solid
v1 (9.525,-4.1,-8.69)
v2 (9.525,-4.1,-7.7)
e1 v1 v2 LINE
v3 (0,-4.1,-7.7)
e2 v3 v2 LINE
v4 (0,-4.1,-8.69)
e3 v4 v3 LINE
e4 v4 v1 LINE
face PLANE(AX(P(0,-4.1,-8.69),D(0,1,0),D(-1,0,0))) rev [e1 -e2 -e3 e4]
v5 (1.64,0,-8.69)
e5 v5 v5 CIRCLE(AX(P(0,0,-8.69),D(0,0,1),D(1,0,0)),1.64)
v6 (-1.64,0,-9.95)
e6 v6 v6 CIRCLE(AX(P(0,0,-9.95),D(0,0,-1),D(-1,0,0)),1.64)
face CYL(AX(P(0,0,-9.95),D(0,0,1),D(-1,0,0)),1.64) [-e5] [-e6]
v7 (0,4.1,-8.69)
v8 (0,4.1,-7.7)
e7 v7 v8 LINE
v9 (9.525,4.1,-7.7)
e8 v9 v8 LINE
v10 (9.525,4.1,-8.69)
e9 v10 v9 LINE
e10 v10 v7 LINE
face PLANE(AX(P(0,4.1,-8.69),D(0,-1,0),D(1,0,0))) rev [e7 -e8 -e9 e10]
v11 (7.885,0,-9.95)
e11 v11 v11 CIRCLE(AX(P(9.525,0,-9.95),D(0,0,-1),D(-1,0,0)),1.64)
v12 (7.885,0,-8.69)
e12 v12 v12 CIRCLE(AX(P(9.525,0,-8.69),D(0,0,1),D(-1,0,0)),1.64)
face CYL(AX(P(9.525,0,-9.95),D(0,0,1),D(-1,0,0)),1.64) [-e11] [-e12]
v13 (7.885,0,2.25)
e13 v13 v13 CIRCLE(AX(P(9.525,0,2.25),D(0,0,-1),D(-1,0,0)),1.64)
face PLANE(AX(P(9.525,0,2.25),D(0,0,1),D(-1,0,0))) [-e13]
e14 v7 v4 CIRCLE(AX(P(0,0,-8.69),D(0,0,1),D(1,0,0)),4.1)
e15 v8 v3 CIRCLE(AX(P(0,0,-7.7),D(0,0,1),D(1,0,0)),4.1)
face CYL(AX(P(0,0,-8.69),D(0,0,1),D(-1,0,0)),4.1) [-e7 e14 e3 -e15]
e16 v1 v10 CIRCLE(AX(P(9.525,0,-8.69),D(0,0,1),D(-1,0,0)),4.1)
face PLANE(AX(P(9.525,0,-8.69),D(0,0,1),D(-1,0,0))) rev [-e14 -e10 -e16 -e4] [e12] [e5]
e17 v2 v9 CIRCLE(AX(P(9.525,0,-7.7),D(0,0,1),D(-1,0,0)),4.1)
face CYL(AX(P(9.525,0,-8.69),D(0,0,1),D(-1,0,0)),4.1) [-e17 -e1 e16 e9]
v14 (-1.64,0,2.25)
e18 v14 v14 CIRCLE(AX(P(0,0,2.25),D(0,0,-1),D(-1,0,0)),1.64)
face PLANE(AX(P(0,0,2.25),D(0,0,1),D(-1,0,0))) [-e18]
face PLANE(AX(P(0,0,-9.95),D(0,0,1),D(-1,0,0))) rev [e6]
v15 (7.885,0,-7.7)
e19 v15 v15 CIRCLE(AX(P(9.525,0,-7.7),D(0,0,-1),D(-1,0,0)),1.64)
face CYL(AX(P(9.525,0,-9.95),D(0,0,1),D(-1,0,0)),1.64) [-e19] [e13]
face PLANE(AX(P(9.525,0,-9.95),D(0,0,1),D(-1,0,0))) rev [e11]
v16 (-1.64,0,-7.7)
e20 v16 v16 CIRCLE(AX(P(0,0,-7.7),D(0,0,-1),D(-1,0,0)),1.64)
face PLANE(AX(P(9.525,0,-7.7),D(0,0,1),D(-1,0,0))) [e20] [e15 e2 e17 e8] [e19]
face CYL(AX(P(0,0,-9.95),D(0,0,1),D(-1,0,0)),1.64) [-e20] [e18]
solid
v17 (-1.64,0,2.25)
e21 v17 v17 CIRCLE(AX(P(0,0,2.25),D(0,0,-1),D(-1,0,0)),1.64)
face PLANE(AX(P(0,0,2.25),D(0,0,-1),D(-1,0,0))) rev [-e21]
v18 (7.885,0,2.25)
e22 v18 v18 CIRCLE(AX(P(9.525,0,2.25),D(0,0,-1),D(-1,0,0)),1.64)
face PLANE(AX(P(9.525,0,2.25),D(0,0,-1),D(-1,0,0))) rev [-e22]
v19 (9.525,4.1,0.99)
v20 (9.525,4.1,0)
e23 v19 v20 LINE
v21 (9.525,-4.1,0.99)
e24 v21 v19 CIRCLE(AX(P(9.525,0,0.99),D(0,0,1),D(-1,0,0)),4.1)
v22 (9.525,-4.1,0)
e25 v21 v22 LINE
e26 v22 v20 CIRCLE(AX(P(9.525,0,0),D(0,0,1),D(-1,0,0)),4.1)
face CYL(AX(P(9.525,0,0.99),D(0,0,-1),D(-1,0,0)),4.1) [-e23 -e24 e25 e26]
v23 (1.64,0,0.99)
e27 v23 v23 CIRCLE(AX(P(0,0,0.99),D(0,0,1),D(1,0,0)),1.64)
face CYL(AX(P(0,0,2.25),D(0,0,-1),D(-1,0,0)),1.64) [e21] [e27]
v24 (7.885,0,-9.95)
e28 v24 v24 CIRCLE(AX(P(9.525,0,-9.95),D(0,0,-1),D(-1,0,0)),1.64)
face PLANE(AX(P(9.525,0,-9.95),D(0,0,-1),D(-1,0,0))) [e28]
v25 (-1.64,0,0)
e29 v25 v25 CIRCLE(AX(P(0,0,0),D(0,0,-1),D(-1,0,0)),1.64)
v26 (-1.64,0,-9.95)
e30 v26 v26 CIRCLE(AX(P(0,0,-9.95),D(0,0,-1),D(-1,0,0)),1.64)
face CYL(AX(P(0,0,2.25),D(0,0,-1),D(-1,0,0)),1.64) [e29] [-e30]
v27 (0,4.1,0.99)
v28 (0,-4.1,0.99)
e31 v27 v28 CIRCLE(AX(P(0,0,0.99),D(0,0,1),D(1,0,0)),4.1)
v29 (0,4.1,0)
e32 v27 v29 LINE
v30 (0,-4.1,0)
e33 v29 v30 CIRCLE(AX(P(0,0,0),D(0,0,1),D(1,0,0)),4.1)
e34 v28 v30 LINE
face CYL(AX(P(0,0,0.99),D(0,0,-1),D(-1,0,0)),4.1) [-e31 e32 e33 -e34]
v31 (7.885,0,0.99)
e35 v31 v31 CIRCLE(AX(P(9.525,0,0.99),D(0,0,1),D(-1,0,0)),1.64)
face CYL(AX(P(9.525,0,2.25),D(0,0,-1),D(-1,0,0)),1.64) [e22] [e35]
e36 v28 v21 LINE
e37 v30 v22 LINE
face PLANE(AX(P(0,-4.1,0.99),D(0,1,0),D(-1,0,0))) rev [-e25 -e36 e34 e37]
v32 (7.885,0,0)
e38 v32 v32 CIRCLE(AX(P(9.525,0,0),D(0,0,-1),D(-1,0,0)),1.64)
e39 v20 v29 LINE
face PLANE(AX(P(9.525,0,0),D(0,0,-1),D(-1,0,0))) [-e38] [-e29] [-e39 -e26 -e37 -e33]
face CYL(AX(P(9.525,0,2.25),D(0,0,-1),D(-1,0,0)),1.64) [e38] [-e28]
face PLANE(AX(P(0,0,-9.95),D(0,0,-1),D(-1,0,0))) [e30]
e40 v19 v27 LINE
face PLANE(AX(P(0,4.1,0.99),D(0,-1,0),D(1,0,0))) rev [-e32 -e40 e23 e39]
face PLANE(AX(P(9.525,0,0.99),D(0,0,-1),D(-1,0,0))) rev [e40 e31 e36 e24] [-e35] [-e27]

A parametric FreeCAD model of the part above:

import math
import FreeCAD as App
import Part
import Sketcher
from FreeCAD import Vector

doc = App.newDocument("Part")
body = doc.addObject("PartDesign::Body", "Body")

sketch1 = doc.addObject("Sketcher::SketchObject", "Sketch")
body.addObject(sketch1)
sketch1.AttachmentSupport = (doc.XY_Plane, [""])
sketch1.MapMode = "FlatFace"
sketch1.addGeometry(Part.LineSegment(Vector(9.5, 4.1, 0), Vector(0, 4.1, 0)), False)
sketch1.addGeometry(Part.ArcOfCircle(Part.Circle(Vector(0, 0, 0), Vector(0, 0, 1), 4.1), math.radians(90), math.radians(270)), False)
sketch1.addGeometry(Part.LineSegment(Vector(0, -4.1, 0), Vector(9.5, -4.1, 0)), False)
sketch1.addGeometry(Part.ArcOfCircle(Part.Circle(Vector(9.5, 0, 0), Vector(0, 0, 1), 4.1), math.radians(-90), math.radians(90)), False)
sketch1.addGeometry(Part.Circle(Vector(9.5, 0, 0), Vector(0, 0, 1), 1.6), False)
sketch1.addGeometry(Part.Circle(Vector(0, 0, 0), Vector(0, 0, 1), 1.6), False)
sketch1.addConstraint(Sketcher.Constraint("Tangent", 0, 2, 1, 1))
sketch1.addConstraint(Sketcher.Constraint("Tangent", 1, 2, 2, 1))
sketch1.addConstraint(Sketcher.Constraint("Tangent", 2, 2, 3, 1))
sketch1.addConstraint(Sketcher.Constraint("Tangent", 3, 2, 0, 1))
sketch1.addConstraint(Sketcher.Constraint("Horizontal", 0))
sketch1.addConstraint(Sketcher.Constraint("Horizontal", 2))
sketch1.addConstraint(Sketcher.Constraint("Coincident", 1, 3, -1, 1))
sketch1.addConstraint(Sketcher.Constraint("Coincident", 5, 3, -1, 1))
sketch1.addConstraint(Sketcher.Constraint("Coincident", 4, 3, 3, 3))
sketch1.addConstraint(Sketcher.Constraint("Equal", 4, 5))
sketch1.addConstraint(Sketcher.Constraint("Radius", 1, 4.1))
sketch1.addConstraint(Sketcher.Constraint("Diameter", 4, 3.28))
sketch1.addConstraint(Sketcher.Constraint("DistanceX", 0, 2, 0, 1, 9.525))
pad1 = doc.addObject("PartDesign::Pad", "Pad")
body.addObject(pad1)
pad1.Profile = sketch1
pad1.Length = 0.99

sketch2 = doc.addObject("Sketcher::SketchObject", "Sketch001")
body.addObject(sketch2)
sketch2.AttachmentSupport = (doc.XY_Plane, [""])
sketch2.MapMode = "FlatFace"
sketch2.addGeometry(Part.Circle(Vector(9.5, 0, 0), Vector(0, 0, 1), 1.6), False)
sketch2.addGeometry(Part.Circle(Vector(0, 0, 0), Vector(0, 0, 1), 1.6), False)
sketch2.addConstraint(Sketcher.Constraint("Coincident", 1, 3, -1, 1))
sketch2.addConstraint(Sketcher.Constraint("Equal", 0, 1))
sketch2.addConstraint(Sketcher.Constraint("PointOnObject", 0, 3, -1))
sketch2.addConstraint(Sketcher.Constraint("Diameter", 0, 3.28))
sketch2.addConstraint(Sketcher.Constraint("DistanceX", -1, 1, 0, 3, 9.525))
pad2 = doc.addObject("PartDesign::Pad", "Pad001")
body.addObject(pad2)
pad2.Profile = sketch2
pad2.Type = "TwoLengths"
pad2.Length = 9.95
pad2.Length2 = 2.25
pad2.Reversed = True
body2 = doc.addObject("PartDesign::Body", "Body001")
doc.recompute()

mirroring = doc.addObject("Part::Mirroring", "Mirroring")
mirroring.Source = body
mirroring.Base = Vector(0, 0, -3.85)
mirroring.Normal = Vector(0, 0, -1)
body2.BaseFeature = mirroring
doc.recompute()
mirroring.Visibility = False

doc.recompute()
